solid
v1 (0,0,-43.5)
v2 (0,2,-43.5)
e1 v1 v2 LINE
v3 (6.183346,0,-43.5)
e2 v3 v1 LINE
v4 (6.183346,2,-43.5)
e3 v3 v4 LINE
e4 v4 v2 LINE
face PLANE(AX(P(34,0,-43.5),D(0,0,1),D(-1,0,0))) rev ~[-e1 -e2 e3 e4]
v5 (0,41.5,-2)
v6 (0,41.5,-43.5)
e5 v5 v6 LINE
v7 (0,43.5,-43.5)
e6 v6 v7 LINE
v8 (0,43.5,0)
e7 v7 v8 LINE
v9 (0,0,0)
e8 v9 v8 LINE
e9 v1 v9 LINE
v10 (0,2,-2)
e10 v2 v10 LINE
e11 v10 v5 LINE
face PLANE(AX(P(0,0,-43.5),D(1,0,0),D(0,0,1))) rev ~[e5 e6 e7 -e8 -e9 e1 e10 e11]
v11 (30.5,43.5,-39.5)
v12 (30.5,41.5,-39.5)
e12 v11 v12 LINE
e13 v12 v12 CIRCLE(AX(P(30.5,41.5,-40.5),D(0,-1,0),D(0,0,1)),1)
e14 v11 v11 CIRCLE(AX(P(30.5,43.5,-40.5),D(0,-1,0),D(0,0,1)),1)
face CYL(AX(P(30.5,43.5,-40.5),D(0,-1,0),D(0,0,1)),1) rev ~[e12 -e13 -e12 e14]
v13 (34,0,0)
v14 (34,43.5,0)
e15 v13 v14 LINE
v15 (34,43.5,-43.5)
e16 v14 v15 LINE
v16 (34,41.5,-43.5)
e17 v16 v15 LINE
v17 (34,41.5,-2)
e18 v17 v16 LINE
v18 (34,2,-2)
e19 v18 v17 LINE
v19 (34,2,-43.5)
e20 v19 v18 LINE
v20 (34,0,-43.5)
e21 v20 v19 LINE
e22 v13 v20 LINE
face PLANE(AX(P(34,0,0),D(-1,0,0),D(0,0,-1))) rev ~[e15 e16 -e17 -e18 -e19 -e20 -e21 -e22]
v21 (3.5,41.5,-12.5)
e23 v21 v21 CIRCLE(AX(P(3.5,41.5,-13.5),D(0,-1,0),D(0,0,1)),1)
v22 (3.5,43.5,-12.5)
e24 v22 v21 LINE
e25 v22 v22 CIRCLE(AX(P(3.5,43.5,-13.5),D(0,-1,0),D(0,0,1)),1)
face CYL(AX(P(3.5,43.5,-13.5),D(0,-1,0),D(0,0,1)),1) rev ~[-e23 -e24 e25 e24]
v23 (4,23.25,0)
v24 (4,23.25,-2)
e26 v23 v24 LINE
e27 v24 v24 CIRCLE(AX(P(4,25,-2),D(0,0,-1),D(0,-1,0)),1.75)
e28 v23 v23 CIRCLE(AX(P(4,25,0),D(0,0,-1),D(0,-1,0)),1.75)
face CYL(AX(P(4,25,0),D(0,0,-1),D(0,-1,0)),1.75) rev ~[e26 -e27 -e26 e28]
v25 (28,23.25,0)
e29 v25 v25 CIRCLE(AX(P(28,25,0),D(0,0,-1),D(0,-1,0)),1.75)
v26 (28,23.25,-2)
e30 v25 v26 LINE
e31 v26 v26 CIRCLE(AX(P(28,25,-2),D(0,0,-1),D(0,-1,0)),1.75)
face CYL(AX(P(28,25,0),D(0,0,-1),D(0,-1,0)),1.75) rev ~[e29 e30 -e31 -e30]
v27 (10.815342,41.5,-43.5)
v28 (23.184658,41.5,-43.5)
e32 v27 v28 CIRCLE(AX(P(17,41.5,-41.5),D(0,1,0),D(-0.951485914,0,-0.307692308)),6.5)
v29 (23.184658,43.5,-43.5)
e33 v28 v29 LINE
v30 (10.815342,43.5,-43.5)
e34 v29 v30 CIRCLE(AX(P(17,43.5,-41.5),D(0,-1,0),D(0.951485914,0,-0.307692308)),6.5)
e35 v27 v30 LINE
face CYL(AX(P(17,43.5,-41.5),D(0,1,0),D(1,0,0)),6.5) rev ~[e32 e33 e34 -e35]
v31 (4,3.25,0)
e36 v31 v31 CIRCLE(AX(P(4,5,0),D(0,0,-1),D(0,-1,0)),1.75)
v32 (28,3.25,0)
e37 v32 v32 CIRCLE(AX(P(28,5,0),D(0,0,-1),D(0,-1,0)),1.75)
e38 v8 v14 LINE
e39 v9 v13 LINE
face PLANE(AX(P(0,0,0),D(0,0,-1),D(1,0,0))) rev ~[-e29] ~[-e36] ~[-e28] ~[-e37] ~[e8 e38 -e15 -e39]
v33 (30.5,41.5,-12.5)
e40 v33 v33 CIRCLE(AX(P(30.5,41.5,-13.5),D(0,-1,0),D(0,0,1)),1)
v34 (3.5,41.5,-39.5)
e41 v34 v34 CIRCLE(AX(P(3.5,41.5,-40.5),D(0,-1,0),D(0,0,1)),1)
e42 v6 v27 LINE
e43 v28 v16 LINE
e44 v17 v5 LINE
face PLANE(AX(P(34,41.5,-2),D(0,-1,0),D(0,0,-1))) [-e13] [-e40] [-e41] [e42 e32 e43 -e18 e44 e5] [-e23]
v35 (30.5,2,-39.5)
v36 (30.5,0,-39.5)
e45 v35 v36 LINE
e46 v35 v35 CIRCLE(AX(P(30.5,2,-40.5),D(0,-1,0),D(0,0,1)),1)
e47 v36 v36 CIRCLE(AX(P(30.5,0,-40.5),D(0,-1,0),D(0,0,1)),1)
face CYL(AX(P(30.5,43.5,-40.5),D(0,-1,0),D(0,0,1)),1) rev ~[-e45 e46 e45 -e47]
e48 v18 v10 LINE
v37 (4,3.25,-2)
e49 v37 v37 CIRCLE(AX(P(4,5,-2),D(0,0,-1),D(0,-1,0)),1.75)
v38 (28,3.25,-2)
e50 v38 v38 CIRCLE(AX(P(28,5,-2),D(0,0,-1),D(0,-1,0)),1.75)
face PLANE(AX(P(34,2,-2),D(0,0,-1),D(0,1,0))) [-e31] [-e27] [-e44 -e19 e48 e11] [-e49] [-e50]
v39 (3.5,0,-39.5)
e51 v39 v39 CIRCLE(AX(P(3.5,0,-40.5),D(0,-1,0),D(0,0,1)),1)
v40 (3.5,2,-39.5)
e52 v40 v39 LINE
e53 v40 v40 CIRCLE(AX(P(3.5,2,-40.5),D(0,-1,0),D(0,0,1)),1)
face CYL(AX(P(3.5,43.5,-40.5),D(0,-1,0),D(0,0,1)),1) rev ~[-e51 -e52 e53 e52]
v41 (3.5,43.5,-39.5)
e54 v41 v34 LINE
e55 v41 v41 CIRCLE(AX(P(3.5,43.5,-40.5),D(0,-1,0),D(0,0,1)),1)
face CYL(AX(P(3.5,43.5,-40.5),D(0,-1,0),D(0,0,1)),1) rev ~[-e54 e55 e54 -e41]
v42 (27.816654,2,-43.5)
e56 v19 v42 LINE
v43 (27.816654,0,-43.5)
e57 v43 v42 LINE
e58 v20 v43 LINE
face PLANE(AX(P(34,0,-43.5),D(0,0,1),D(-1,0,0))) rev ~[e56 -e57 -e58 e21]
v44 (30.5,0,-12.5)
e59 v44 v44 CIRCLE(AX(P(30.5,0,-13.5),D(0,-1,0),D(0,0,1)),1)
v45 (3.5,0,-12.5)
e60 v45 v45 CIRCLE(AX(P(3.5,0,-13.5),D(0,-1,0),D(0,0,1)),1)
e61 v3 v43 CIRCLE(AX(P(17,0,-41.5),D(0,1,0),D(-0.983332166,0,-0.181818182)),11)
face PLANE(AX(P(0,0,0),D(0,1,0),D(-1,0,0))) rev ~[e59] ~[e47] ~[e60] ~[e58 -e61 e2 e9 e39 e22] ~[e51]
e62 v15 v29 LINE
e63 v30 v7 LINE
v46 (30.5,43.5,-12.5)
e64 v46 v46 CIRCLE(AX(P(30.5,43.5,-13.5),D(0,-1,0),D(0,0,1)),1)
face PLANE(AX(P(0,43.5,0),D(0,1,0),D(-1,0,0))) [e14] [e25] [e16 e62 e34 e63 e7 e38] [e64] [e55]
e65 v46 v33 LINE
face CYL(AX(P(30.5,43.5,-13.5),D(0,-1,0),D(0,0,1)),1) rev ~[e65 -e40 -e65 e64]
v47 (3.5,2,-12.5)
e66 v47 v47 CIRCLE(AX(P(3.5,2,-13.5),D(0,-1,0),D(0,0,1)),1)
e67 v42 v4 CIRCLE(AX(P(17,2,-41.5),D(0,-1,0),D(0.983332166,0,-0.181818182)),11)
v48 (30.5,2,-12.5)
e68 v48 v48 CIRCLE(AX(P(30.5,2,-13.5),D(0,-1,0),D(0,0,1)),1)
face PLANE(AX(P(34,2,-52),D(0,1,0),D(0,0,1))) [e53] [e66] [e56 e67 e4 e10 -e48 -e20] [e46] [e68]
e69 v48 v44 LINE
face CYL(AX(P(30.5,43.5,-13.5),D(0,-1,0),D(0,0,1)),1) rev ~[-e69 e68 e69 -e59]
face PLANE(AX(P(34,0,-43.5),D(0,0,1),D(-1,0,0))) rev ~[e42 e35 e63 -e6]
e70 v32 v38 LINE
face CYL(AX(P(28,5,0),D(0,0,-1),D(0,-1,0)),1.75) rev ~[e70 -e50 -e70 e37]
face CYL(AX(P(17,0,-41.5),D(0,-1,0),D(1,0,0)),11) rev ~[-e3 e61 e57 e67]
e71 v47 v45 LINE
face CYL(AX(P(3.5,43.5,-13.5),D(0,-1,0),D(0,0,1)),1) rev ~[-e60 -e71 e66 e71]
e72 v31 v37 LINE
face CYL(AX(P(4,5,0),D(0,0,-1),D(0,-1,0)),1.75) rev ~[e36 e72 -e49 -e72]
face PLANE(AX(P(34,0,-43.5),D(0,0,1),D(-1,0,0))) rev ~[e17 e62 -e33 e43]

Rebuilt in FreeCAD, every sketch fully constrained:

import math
import FreeCAD as App
import Part
import Sketcher

doc = App.newDocument("Part")
body = doc.addObject("PartDesign::Body", "Body")

# Sketch on XZ plane
sketch1 = doc.addObject("Sketcher::SketchObject", "Sketch")
body.addObject(sketch1)
sketch1.AttachmentSupport = (doc.XZ_Plane, [""])
sketch1.MapMode = "FlatFace"
sketch1.addGeometry([
    Part.LineSegment(App.Vector(0, -44, 0), App.Vector(0, 0, 0)),
    Part.LineSegment(App.Vector(0, 0, 0), App.Vector(34, 0, 0)),
    Part.LineSegment(App.Vector(34, 0, 0), App.Vector(34, -44, 0)),
    Part.LineSegment(App.Vector(34, -44, 0), App.Vector(0, -44, 0)),
], False)
sketch1.addConstraint([
    Sketcher.Constraint("Coincident", 0, 2, 1, 1),
    Sketcher.Constraint("Coincident", 1, 2, 2, 1),
    Sketcher.Constraint("Coincident", 2, 2, 3, 1),
    Sketcher.Constraint("Coincident", 3, 2, 0, 1),
    Sketcher.Constraint("Vertical", 0),
    Sketcher.Constraint("Horizontal", 1),
    Sketcher.Constraint("Vertical", 2),
    Sketcher.Constraint("Horizontal", 3),
    Sketcher.Constraint("Coincident", 0, 2, -1, 1),
    Sketcher.Constraint("DistanceX", 1, 1, 1, 2, 34.0),
    Sketcher.Constraint("DistanceY", 0, 1, 0, 2, 43.5),
])
pad1 = doc.addObject("PartDesign::Pad", "Pad")
body.addObject(pad1)
pad1.Profile = sketch1
pad1.Length = 43.5
pad1.Reversed = True

# Sketch on YZ plane
sketch2 = doc.addObject("Sketcher::SketchObject", "Sketch001")
body.addObject(sketch2)
sketch2.AttachmentSupport = (doc.YZ_Plane, [""])
sketch2.MapMode = "FlatFace"
sketch2.AttachmentOffset = App.Placement(App.Vector(0, 0, 34), App.Rotation())
sketch2.addGeometry([
    Part.LineSegment(App.Vector(42, -52, 0), App.Vector(42, -2, 0)),
    Part.LineSegment(App.Vector(42, -2, 0), App.Vector(2, -2, 0)),
    Part.LineSegment(App.Vector(2, -2, 0), App.Vector(2, -52, 0)),
    Part.LineSegment(App.Vector(2, -52, 0), App.Vector(42, -52, 0)),
], False)
sketch2.addConstraint([
    Sketcher.Constraint("Coincident", 0, 2, 1, 1),
    Sketcher.Constraint("Coincident", 1, 2, 2, 1),
    Sketcher.Constraint("Coincident", 2, 2, 3, 1),
    Sketcher.Constraint("Coincident", 3, 2, 0, 1),
    Sketcher.Constraint("Vertical", 0),
    Sketcher.Constraint("Horizontal", 1),
    Sketcher.Constraint("Vertical", 2),
    Sketcher.Constraint("Horizontal", 3),
    Sketcher.Constraint("DistanceY", 0, 1, 0, 2, 50.0),
    Sketcher.Constraint("DistanceX", 1, 2, 1, 1, 39.5),
    Sketcher.Constraint("DistanceY", 0, 2, -1, 1, 2.0),
    Sketcher.Constraint("DistanceX", -1, 1, 1, 2, 2.0),
])
pocket1 = doc.addObject("PartDesign::Pocket", "Pocket")
body.addObject(pocket1)
pocket1.Profile = sketch2
pocket1.Length = 43.5

# Sketch on XZ plane
sketch3 = doc.addObject("Sketcher::SketchObject", "Sketch002")
body.addObject(sketch3)
sketch3.AttachmentSupport = (doc.XZ_Plane, [""])
sketch3.MapMode = "FlatFace"
sketch3.addGeometry([
    Part.ArcOfCircle(Part.Circle(App.Vector(17, -42, 0), App.Vector(0, 0, 1), 11), math.radians(-10), math.radians(190)),
    Part.LineSegment(App.Vector(6, -44, 0), App.Vector(28, -44, 0)),
], False)
sketch3.addConstraint([
    Sketcher.Constraint("Coincident", 0, 1, 1, 2),
    Sketcher.Constraint("Coincident", 1, 1, 0, 2),
    Sketcher.Constraint("Horizontal", 1),
    Sketcher.Constraint("Radius", 0, 11.0),
    Sketcher.Constraint("DistanceX", -1, 1, 0, 3, 17.0),
    Sketcher.Constraint("DistanceY", 0, 1, 0, 3, 2.0),
    Sketcher.Constraint("DistanceY", 0, 3, -1, 1, 41.5),
])
pocket2 = doc.addObject("PartDesign::Pocket", "Pocket001")
body.addObject(pocket2)
pocket2.Profile = sketch3
pocket2.Length = 2

# Sketch on XZ plane
sketch4 = doc.addObject("Sketcher::SketchObject", "Sketch003")
body.addObject(sketch4)
sketch4.AttachmentSupport = (doc.XZ_Plane, [""])
sketch4.MapMode = "FlatFace"
sketch4.AttachmentOffset = App.Placement(App.Vector(0, 0, -43.5), App.Rotation())
sketch4.addGeometry(Part.Circle(App.Vector(17, -42, 0), App.Vector(0, 0, 1), 6), False)
sketch4.addConstraint([
    Sketcher.Constraint("Diameter", 0, 13.0),
    Sketcher.Constraint("DistanceX", -1, 1, 0, 3, 17.0),
    Sketcher.Constraint("DistanceY", 0, 3, -1, 1, 41.5),
])
pocket3 = doc.addObject("PartDesign::Pocket", "Pocket002")
body.addObject(pocket3)
pocket3.Profile = sketch4
pocket3.Length = 2
pocket3.Reversed = True

# Sketch on XZ plane
sketch5 = doc.addObject("Sketcher::SketchObject", "Sketch004")
body.addObject(sketch5)
sketch5.AttachmentSupport = (doc.XZ_Plane, [""])
sketch5.MapMode = "FlatFace"
sketch5.AttachmentOffset = App.Placement(App.Vector(0, 0, -43.5), App.Rotation())
sketch5.addGeometry([
    Part.Circle(App.Vector(3.5, -13.5, 0), App.Vector(0, 0, 1), 1),
    Part.Circle(App.Vector(3.5, -40.5, 0), App.Vector(0, 0, 1), 1),
    Part.Circle(App.Vector(30.5, -40.5, 0), App.Vector(0, 0, 1), 1),
    Part.Circle(App.Vector(30.5, -13.5, 0), App.Vector(0, 0, 1), 1),
], False)
sketch5.addConstraint([
    Sketcher.Constraint("Equal", 0, 1),
    Sketcher.Constraint("Equal", 1, 2),
    Sketcher.Constraint("Equal", 2, 3),
    Sketcher.Constraint("Horizontal", 1, 3, 2, 3),
    Sketcher.Constraint("Horizontal", 0, 3, 3, 3),
    Sketcher.Constraint("Vertical", 0, 3, 1, 3),
    Sketcher.Constraint("Vertical", 2, 3, 3, 3),
    Sketcher.Constraint("Diameter", 0, 2.0),
    Sketcher.Constraint("DistanceY", 1, 3, 0, 3, 27.0),
    Sketcher.Constraint("DistanceX", 1, 3, 2, 3, 27.0),
    Sketcher.Constraint("DistanceX", -1, 1, 0, 3, 3.5),
    Sketcher.Constraint("DistanceY", 0, 3, -1, 1, 13.5),
])
doc.recompute()
hole = doc.addObject("PartDesign::Hole", "Hole")
body.addObject(hole)
hole.Profile = sketch5
hole.ThreadType = "None"
hole.Diameter = 2
hole.DepthType = "ThroughAll"
hole.Reversed = True

# Sketch on XY plane
sketch6 = doc.addObject("Sketcher::SketchObject", "Sketch005")
body.addObject(sketch6)
sketch6.AttachmentSupport = (doc.XY_Plane, [""])
sketch6.MapMode = "FlatFace"
sketch6.addGeometry([
    Part.Circle(App.Vector(4, 5, 0), App.Vector(0, 0, 1), 1.8),
    Part.Circle(App.Vector(4, 25, 0), App.Vector(0, 0, 1), 1.8),
    Part.Circle(App.Vector(28, 5, 0), App.Vector(0, 0, 1), 1.8),
    Part.Circle(App.Vector(28, 25, 0), App.Vector(0, 0, 1), 1.8),
], False)
sketch6.addConstraint([
    Sketcher.Constraint("Equal", 0, 1),
    Sketcher.Constraint("Equal", 1, 2),
    Sketcher.Constraint("Equal", 2, 3),
    Sketcher.Constraint("Horizontal", 0, 3, 2, 3),
    Sketcher.Constraint("Horizontal", 1, 3, 3, 3),
    Sketcher.Constraint("Vertical", 0, 3, 1, 3),
    Sketcher.Constraint("Vertical", 2, 3, 3, 3),
    Sketcher.Constraint("Diameter", 0, 3.5),
    Sketcher.Constraint("DistanceX", -1, 1, 0, 3, 4.0),
    Sketcher.Constraint("DistanceY", -1, 1, 0, 3, 5.0),
    Sketcher.Constraint("DistanceY", -1, 1, 1, 3, 25.0),
    Sketcher.Constraint("DistanceX", -1, 1, 2, 3, 28.0),
])
doc.recompute()
hole2 = doc.addObject("PartDesign::Hole", "Hole001")
body.addObject(hole2)
hole2.Profile = sketch6
hole2.ThreadType = "None"
hole2.Diameter = 3.5
hole2.DepthType = "ThroughAll"

doc.recompute()
